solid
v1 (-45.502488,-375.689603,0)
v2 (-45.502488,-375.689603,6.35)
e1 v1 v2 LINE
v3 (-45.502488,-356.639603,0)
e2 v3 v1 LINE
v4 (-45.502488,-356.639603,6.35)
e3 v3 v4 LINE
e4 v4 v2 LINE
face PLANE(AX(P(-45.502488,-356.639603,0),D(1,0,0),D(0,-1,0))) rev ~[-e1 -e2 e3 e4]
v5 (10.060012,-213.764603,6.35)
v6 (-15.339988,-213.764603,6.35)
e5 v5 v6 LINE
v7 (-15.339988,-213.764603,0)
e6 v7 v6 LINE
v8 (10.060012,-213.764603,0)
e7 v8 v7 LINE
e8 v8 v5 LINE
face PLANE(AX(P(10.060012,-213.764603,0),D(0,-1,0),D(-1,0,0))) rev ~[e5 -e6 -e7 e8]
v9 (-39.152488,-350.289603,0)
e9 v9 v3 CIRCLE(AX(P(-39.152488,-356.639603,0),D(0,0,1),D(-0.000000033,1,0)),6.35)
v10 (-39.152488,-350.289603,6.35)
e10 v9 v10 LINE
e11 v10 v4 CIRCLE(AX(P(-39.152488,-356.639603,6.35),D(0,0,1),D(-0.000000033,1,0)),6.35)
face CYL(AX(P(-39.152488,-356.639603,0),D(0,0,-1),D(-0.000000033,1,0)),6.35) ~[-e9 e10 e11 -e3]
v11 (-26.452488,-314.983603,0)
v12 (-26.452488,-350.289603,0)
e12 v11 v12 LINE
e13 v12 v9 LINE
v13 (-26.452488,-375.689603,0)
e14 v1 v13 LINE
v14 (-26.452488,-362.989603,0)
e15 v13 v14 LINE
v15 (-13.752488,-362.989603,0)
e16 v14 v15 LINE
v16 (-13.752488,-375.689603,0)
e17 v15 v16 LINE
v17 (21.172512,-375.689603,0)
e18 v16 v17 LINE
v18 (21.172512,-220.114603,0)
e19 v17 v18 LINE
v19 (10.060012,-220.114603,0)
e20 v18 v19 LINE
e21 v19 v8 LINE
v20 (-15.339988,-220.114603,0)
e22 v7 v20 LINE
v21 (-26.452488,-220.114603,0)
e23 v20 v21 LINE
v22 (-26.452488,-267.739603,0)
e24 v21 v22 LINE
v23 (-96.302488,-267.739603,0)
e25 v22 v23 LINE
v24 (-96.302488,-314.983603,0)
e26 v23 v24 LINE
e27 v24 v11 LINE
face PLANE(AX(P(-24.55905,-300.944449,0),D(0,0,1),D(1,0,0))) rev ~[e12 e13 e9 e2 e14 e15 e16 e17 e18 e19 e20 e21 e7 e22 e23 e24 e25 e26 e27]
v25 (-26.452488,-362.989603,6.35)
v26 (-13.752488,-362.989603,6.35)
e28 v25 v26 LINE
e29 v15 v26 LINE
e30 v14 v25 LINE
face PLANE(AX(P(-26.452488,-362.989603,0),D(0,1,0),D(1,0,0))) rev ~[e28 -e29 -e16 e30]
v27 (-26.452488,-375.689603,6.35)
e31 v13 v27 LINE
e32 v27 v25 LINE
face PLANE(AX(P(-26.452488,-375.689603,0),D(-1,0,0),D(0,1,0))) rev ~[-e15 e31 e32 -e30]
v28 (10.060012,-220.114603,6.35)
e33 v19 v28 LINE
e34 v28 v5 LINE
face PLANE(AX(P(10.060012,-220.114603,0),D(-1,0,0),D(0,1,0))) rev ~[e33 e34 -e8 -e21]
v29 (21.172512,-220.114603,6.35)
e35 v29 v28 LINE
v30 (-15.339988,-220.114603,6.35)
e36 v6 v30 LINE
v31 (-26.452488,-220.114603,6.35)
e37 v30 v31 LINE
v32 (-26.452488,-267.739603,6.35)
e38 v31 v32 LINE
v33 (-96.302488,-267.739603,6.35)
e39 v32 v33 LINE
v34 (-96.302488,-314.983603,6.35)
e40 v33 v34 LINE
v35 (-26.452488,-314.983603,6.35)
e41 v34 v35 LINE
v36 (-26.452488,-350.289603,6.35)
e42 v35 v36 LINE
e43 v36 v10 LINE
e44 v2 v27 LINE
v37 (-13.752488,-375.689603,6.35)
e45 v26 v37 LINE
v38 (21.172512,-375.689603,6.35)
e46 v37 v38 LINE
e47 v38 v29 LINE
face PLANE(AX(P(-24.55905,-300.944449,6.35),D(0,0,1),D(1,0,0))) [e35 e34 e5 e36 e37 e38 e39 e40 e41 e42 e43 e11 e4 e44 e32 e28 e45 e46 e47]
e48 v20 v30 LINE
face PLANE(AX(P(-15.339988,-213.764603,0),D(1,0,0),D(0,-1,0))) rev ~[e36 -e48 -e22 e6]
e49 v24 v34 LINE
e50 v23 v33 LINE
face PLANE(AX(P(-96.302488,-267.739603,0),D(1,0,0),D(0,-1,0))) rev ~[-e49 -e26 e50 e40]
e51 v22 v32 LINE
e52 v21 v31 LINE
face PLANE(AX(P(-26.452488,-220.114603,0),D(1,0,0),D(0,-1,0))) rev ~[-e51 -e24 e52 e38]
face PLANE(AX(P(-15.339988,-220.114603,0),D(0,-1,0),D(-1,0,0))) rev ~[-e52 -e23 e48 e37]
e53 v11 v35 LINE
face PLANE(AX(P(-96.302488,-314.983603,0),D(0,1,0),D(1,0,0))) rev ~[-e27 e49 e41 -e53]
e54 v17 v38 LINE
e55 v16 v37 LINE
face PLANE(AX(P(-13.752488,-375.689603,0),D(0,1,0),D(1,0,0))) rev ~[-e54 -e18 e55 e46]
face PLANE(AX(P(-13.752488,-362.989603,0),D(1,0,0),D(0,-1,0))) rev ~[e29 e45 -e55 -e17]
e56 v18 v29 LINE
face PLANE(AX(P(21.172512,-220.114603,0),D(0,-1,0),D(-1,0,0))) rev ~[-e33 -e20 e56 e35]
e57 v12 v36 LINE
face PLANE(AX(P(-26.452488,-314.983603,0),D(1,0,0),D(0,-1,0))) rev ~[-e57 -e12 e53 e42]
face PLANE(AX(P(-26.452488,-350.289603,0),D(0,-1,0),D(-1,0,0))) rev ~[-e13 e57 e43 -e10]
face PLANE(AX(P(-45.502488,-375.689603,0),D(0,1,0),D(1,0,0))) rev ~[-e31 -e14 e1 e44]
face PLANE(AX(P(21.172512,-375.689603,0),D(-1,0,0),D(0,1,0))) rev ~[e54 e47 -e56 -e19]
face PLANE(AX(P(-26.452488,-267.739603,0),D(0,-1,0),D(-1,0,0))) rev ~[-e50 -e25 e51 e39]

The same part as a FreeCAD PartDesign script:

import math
import FreeCAD as App
import Part
import Sketcher

V = App.Vector
Q = App.Units.Quantity

doc = App.newDocument("Part")
body = doc.addObject("PartDesign::Body", "Body")

# Sketch on XY plane
sketch1 = body.newObject("Sketcher::SketchObject", "Sketch")
sketch1.AttachmentSupport = (doc.getObject("XY_Plane"), [""])
sketch1.MapMode = "FlatFace"
sketch1.addGeometry(Part.LineSegment(V(21, -376, 0), V(21, -220, 0)), False)
sketch1.addGeometry(Part.LineSegment(V(21, -220, 0), V(10, -220, 0)), False)
sketch1.addGeometry(Part.LineSegment(V(10, -220, 0), V(10, -214, 0)), False)
sketch1.addGeometry(Part.LineSegment(V(10, -214, 0), V(-15, -214, 0)), False)
sketch1.addGeometry(Part.LineSegment(V(-15, -214, 0), V(-15, -220, 0)), False)
sketch1.addGeometry(Part.LineSegment(V(-15, -220, 0), V(-26, -220, 0)), False)
sketch1.addGeometry(Part.LineSegment(V(-26, -220, 0), V(-26, -268, 0)), False)
sketch1.addGeometry(Part.LineSegment(V(-26, -268, 0), V(-96, -268, 0)), False)
sketch1.addGeometry(Part.LineSegment(V(-96, -268, 0), V(-96, -315, 0)), False)
sketch1.addGeometry(Part.LineSegment(V(-96, -315, 0), V(-26, -315, 0)), False)
sketch1.addGeometry(Part.LineSegment(V(-26, -315, 0), V(-26, -350, 0)), False)
sketch1.addGeometry(Part.LineSegment(V(-26, -350, 0), V(-39, -350, 0)), False)
sketch1.addGeometry(Part.ArcOfCircle(Part.Circle(V(-39, -357, 0), V(0, 0, 1), 6), math.radians(90), math.radians(180)), False)
sketch1.addGeometry(Part.LineSegment(V(-46, -357, 0), V(-46, -376, 0)), False)
sketch1.addGeometry(Part.LineSegment(V(-46, -376, 0), V(-26, -376, 0)), False)
sketch1.addGeometry(Part.LineSegment(V(-26, -376, 0), V(-26, -363, 0)), False)
sketch1.addGeometry(Part.LineSegment(V(-26, -363, 0), V(-14, -363, 0)), False)
sketch1.addGeometry(Part.LineSegment(V(-14, -363, 0), V(-14, -376, 0)), False)
sketch1.addGeometry(Part.LineSegment(V(-14, -376, 0), V(21, -376, 0)), False)
sketch1.addConstraint(Sketcher.Constraint("Coincident", 0, 2, 1, 1))
sketch1.addConstraint(Sketcher.Constraint("Coincident", 1, 2, 2, 1))
sketch1.addConstraint(Sketcher.Constraint("Coincident", 2, 2, 3, 1))
sketch1.addConstraint(Sketcher.Constraint("Coincident", 3, 2, 4, 1))
sketch1.addConstraint(Sketcher.Constraint("Coincident", 4, 2, 5, 1))
sketch1.addConstraint(Sketcher.Constraint("Coincident", 5, 2, 6, 1))
sketch1.addConstraint(Sketcher.Constraint("Coincident", 6, 2, 7, 1))
sketch1.addConstraint(Sketcher.Constraint("Coincident", 7, 2, 8, 1))
sketch1.addConstraint(Sketcher.Constraint("Coincident", 8, 2, 9, 1))
sketch1.addConstraint(Sketcher.Constraint("Coincident", 9, 2, 10, 1))
sketch1.addConstraint(Sketcher.Constraint("Coincident", 10, 2, 11, 1))
sketch1.addConstraint(Sketcher.Constraint("Tangent", 11, 2, 12, 1))
sketch1.addConstraint(Sketcher.Constraint("Tangent", 12, 2, 13, 1))
sketch1.addConstraint(Sketcher.Constraint("Coincident", 13, 2, 14, 1))
sketch1.addConstraint(Sketcher.Constraint("Coincident", 14, 2, 15, 1))
sketch1.addConstraint(Sketcher.Constraint("Coincident", 15, 2, 16, 1))
sketch1.addConstraint(Sketcher.Constraint("Coincident", 16, 2, 17, 1))
sketch1.addConstraint(Sketcher.Constraint("Coincident", 17, 2, 18, 1))
sketch1.addConstraint(Sketcher.Constraint("Coincident", 18, 2, 0, 1))
sketch1.addConstraint(Sketcher.Constraint("Vertical", 0))
sketch1.addConstraint(Sketcher.Constraint("Horizontal", 1))
sketch1.addConstraint(Sketcher.Constraint("Vertical", 2))
sketch1.addConstraint(Sketcher.Constraint("Horizontal", 3))
sketch1.addConstraint(Sketcher.Constraint("Vertical", 4))
sketch1.addConstraint(Sketcher.Constraint("Horizontal", 5))
sketch1.addConstraint(Sketcher.Constraint("Vertical", 6))
sketch1.addConstraint(Sketcher.Constraint("Horizontal", 7))
sketch1.addConstraint(Sketcher.Constraint("Vertical", 8))
sketch1.addConstraint(Sketcher.Constraint("Horizontal", 9))
sketch1.addConstraint(Sketcher.Constraint("Vertical", 10))
sketch1.addConstraint(Sketcher.Constraint("Horizontal", 11))
sketch1.addConstraint(Sketcher.Constraint("Vertical", 13))
sketch1.addConstraint(Sketcher.Constraint("Horizontal", 14))
sketch1.addConstraint(Sketcher.Constraint("Vertical", 15))
sketch1.addConstraint(Sketcher.Constraint("Horizontal", 16))
sketch1.addConstraint(Sketcher.Constraint("Vertical", 17))
sketch1.addConstraint(Sketcher.Constraint("Horizontal", 18))
sketch1.addConstraint(Sketcher.Constraint("Horizontal", 1, 2, 4, 2))
sketch1.addConstraint(Sketcher.Constraint("Horizontal", 14, 2, 17, 2))
sketch1.addConstraint(Sketcher.Constraint("Vertical", 6, 2, 9, 2))
sketch1.addConstraint(Sketcher.Constraint("Vertical", 10, 2, 14, 2))
sketch1.addConstraint(Sketcher.Constraint("Equal", 1, 5))
sketch1.addConstraint(Sketcher.Constraint("Equal", 11, 16))
sketch1.addConstraint(Sketcher.Constraint("Equal", 14, 13))
sketch1.addConstraint(Sketcher.Constraint("Equal", 16, 15))
sketch1.addConstraint(Sketcher.Constraint("DistanceX", 3, 2, 3, 1, Q("1 in")))
sketch1.addConstraint(Sketcher.Constraint("Radius", 12, Q("0.25 in")))
sketch1.addConstraint(Sketcher.Constraint("DistanceX", 11, 2, 11, 1, Q("0.5 in")))
sketch1.addConstraint(Sketcher.Constraint("DistanceX", 8, 2, 12, 2, Q("2 in")))
sketch1.addConstraint(Sketcher.Constraint("DistanceY", 2, 1, 2, 2, Q("0.25 in")))
sketch1.addConstraint(Sketcher.Constraint("DistanceY", 8, 2, 8, 1, Q("1.86 in")))
sketch1.addConstraint(Sketcher.Constraint("DistanceY", 10, 2, 10, 1, Q("1.39 in")))
sketch1.addConstraint(Sketcher.Constraint("DistanceX", 1, 2, 1, 1, Q("0.4375 in")))
sketch1.addConstraint(Sketcher.Constraint("DistanceY", 0, 1, 0, 2, Q("6.125 in")))
sketch1.addConstraint(Sketcher.Constraint("DistanceX", 12, 3, -1, 1, Q("39.152488 mm")))
sketch1.addConstraint(Sketcher.Constraint("DistanceY", 12, 3, -1, 1, Q("356.639603 mm")))
pad1 = body.newObject("PartDesign::Pad", "Pad")
pad1.Profile = sketch1
pad1.Length = Q("0.25 in")

doc.recompute()
